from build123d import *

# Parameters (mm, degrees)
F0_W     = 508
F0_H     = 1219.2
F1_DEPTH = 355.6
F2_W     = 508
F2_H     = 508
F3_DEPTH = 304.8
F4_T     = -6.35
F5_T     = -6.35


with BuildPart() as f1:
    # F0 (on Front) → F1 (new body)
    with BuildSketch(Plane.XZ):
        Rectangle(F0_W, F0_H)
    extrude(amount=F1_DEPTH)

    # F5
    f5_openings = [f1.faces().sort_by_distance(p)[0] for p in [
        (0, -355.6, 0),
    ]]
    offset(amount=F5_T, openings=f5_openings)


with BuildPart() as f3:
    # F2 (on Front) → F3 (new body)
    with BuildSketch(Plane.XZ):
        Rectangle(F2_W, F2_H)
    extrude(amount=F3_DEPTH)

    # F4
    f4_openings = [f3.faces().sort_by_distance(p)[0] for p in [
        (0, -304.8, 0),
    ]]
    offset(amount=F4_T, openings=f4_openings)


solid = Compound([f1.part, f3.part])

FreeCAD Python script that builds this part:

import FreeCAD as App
import Part
import Sketcher
from FreeCAD import Vector
Q = App.Units.Quantity


def faces_at(feature, points):
    """Names of the faces that lie closest to the given points."""
    faces = feature.Shape.Faces
    near = lambda p: min(range(len(faces)), key=lambda i: faces[i].distToShape(Part.Vertex(*p))[0])
    return sorted({f"Face{near(p) + 1}" for p in points})


def add_polygon(sketch, points):
    """Adds a closed chain of lines whose ends are joined by coincident constraints."""
    first, n = sketch.GeometryCount, len(points)
    for a, b in zip(points, points[1:] + points[:1]):
        sketch.addGeometry(Part.LineSegment(App.Vector(*a, 0), App.Vector(*b, 0)), False)
    for i in range(n):
        sketch.addConstraint(Sketcher.Constraint("Coincident", first + i, 2, first + (i + 1) % n, 1))

doc = App.newDocument("Part")
body = doc.addObject("PartDesign::Body", "Body")

# Sketch on XZ plane
sketch1 = body.newObject("Sketcher::SketchObject", "Sketch")
sketch1.AttachmentSupport = (doc.getObject("XZ_Plane"), [""])
sketch1.MapMode = "FlatFace"
add_polygon(sketch1, [(-254, 609.6), (-254, -609.6), (254, -609.6), (254, 609.6)])  # lines 0-3
sketch1.addConstraint([
    Sketcher.Constraint("Vertical", 0),
    Sketcher.Constraint("Horizontal", 1),
    Sketcher.Constraint("Vertical", 2),
    Sketcher.Constraint("Horizontal", 3),
    Sketcher.Constraint("Symmetric", 0, 2, 2, 2, -1, 1),
    Sketcher.Constraint("DistanceX", 1, 1, 1, 2, Q("20 in")),
    Sketcher.Constraint("DistanceY", 0, 2, 0, 1, Q("48 in")),
])
pad1 = body.newObject("PartDesign::Pad", "Pad")
pad1.Profile = sketch1
pad1.Length = Q("14 in")
doc.recompute()

thickness = body.newObject("PartDesign::Thickness", "Thickness")
thickness.Base = (pad1, faces_at(pad1, [(0, -355.6, 0)]))
thickness.Value = Q("0.25 in")
thickness.Reversed = True
thickness.Join = "Arc"
body2 = doc.addObject("PartDesign::Body", "Body001")

# Sketch on XZ plane
sketch2 = body2.newObject("Sketcher::SketchObject", "Sketch001")
sketch2.AttachmentSupport = (doc.getObject("XZ_Plane001"), [""])
sketch2.MapMode = "FlatFace"
add_polygon(sketch2, [(-254, 254), (-254, -254), (254, -254), (254, 254)])  # lines 0-3
sketch2.addConstraint([
    Sketcher.Constraint("Vertical", 0),
    Sketcher.Constraint("Horizontal", 1),
    Sketcher.Constraint("Vertical", 2),
    Sketcher.Constraint("Horizontal", 3),
    Sketcher.Constraint("Symmetric", 0, 2, 2, 2, -1, 1),
    Sketcher.Constraint("Equal", 3, 0),
    Sketcher.Constraint("DistanceX", 1, 1, 1, 2, Q("20 in")),
])
pad2 = body2.newObject("PartDesign::Pad", "Pad001")
pad2.Profile = sketch2
pad2.Length = Q("12 in")
doc.recompute()

thickness2 = body2.newObject("PartDesign::Thickness", "Thickness001")
thickness2.Base = (pad2, faces_at(pad2, [(0, -304.8, 0)]))
thickness2.Value = Q("0.25 in")
thickness2.Reversed = True
thickness2.Join = "Arc"

doc.recompute()
